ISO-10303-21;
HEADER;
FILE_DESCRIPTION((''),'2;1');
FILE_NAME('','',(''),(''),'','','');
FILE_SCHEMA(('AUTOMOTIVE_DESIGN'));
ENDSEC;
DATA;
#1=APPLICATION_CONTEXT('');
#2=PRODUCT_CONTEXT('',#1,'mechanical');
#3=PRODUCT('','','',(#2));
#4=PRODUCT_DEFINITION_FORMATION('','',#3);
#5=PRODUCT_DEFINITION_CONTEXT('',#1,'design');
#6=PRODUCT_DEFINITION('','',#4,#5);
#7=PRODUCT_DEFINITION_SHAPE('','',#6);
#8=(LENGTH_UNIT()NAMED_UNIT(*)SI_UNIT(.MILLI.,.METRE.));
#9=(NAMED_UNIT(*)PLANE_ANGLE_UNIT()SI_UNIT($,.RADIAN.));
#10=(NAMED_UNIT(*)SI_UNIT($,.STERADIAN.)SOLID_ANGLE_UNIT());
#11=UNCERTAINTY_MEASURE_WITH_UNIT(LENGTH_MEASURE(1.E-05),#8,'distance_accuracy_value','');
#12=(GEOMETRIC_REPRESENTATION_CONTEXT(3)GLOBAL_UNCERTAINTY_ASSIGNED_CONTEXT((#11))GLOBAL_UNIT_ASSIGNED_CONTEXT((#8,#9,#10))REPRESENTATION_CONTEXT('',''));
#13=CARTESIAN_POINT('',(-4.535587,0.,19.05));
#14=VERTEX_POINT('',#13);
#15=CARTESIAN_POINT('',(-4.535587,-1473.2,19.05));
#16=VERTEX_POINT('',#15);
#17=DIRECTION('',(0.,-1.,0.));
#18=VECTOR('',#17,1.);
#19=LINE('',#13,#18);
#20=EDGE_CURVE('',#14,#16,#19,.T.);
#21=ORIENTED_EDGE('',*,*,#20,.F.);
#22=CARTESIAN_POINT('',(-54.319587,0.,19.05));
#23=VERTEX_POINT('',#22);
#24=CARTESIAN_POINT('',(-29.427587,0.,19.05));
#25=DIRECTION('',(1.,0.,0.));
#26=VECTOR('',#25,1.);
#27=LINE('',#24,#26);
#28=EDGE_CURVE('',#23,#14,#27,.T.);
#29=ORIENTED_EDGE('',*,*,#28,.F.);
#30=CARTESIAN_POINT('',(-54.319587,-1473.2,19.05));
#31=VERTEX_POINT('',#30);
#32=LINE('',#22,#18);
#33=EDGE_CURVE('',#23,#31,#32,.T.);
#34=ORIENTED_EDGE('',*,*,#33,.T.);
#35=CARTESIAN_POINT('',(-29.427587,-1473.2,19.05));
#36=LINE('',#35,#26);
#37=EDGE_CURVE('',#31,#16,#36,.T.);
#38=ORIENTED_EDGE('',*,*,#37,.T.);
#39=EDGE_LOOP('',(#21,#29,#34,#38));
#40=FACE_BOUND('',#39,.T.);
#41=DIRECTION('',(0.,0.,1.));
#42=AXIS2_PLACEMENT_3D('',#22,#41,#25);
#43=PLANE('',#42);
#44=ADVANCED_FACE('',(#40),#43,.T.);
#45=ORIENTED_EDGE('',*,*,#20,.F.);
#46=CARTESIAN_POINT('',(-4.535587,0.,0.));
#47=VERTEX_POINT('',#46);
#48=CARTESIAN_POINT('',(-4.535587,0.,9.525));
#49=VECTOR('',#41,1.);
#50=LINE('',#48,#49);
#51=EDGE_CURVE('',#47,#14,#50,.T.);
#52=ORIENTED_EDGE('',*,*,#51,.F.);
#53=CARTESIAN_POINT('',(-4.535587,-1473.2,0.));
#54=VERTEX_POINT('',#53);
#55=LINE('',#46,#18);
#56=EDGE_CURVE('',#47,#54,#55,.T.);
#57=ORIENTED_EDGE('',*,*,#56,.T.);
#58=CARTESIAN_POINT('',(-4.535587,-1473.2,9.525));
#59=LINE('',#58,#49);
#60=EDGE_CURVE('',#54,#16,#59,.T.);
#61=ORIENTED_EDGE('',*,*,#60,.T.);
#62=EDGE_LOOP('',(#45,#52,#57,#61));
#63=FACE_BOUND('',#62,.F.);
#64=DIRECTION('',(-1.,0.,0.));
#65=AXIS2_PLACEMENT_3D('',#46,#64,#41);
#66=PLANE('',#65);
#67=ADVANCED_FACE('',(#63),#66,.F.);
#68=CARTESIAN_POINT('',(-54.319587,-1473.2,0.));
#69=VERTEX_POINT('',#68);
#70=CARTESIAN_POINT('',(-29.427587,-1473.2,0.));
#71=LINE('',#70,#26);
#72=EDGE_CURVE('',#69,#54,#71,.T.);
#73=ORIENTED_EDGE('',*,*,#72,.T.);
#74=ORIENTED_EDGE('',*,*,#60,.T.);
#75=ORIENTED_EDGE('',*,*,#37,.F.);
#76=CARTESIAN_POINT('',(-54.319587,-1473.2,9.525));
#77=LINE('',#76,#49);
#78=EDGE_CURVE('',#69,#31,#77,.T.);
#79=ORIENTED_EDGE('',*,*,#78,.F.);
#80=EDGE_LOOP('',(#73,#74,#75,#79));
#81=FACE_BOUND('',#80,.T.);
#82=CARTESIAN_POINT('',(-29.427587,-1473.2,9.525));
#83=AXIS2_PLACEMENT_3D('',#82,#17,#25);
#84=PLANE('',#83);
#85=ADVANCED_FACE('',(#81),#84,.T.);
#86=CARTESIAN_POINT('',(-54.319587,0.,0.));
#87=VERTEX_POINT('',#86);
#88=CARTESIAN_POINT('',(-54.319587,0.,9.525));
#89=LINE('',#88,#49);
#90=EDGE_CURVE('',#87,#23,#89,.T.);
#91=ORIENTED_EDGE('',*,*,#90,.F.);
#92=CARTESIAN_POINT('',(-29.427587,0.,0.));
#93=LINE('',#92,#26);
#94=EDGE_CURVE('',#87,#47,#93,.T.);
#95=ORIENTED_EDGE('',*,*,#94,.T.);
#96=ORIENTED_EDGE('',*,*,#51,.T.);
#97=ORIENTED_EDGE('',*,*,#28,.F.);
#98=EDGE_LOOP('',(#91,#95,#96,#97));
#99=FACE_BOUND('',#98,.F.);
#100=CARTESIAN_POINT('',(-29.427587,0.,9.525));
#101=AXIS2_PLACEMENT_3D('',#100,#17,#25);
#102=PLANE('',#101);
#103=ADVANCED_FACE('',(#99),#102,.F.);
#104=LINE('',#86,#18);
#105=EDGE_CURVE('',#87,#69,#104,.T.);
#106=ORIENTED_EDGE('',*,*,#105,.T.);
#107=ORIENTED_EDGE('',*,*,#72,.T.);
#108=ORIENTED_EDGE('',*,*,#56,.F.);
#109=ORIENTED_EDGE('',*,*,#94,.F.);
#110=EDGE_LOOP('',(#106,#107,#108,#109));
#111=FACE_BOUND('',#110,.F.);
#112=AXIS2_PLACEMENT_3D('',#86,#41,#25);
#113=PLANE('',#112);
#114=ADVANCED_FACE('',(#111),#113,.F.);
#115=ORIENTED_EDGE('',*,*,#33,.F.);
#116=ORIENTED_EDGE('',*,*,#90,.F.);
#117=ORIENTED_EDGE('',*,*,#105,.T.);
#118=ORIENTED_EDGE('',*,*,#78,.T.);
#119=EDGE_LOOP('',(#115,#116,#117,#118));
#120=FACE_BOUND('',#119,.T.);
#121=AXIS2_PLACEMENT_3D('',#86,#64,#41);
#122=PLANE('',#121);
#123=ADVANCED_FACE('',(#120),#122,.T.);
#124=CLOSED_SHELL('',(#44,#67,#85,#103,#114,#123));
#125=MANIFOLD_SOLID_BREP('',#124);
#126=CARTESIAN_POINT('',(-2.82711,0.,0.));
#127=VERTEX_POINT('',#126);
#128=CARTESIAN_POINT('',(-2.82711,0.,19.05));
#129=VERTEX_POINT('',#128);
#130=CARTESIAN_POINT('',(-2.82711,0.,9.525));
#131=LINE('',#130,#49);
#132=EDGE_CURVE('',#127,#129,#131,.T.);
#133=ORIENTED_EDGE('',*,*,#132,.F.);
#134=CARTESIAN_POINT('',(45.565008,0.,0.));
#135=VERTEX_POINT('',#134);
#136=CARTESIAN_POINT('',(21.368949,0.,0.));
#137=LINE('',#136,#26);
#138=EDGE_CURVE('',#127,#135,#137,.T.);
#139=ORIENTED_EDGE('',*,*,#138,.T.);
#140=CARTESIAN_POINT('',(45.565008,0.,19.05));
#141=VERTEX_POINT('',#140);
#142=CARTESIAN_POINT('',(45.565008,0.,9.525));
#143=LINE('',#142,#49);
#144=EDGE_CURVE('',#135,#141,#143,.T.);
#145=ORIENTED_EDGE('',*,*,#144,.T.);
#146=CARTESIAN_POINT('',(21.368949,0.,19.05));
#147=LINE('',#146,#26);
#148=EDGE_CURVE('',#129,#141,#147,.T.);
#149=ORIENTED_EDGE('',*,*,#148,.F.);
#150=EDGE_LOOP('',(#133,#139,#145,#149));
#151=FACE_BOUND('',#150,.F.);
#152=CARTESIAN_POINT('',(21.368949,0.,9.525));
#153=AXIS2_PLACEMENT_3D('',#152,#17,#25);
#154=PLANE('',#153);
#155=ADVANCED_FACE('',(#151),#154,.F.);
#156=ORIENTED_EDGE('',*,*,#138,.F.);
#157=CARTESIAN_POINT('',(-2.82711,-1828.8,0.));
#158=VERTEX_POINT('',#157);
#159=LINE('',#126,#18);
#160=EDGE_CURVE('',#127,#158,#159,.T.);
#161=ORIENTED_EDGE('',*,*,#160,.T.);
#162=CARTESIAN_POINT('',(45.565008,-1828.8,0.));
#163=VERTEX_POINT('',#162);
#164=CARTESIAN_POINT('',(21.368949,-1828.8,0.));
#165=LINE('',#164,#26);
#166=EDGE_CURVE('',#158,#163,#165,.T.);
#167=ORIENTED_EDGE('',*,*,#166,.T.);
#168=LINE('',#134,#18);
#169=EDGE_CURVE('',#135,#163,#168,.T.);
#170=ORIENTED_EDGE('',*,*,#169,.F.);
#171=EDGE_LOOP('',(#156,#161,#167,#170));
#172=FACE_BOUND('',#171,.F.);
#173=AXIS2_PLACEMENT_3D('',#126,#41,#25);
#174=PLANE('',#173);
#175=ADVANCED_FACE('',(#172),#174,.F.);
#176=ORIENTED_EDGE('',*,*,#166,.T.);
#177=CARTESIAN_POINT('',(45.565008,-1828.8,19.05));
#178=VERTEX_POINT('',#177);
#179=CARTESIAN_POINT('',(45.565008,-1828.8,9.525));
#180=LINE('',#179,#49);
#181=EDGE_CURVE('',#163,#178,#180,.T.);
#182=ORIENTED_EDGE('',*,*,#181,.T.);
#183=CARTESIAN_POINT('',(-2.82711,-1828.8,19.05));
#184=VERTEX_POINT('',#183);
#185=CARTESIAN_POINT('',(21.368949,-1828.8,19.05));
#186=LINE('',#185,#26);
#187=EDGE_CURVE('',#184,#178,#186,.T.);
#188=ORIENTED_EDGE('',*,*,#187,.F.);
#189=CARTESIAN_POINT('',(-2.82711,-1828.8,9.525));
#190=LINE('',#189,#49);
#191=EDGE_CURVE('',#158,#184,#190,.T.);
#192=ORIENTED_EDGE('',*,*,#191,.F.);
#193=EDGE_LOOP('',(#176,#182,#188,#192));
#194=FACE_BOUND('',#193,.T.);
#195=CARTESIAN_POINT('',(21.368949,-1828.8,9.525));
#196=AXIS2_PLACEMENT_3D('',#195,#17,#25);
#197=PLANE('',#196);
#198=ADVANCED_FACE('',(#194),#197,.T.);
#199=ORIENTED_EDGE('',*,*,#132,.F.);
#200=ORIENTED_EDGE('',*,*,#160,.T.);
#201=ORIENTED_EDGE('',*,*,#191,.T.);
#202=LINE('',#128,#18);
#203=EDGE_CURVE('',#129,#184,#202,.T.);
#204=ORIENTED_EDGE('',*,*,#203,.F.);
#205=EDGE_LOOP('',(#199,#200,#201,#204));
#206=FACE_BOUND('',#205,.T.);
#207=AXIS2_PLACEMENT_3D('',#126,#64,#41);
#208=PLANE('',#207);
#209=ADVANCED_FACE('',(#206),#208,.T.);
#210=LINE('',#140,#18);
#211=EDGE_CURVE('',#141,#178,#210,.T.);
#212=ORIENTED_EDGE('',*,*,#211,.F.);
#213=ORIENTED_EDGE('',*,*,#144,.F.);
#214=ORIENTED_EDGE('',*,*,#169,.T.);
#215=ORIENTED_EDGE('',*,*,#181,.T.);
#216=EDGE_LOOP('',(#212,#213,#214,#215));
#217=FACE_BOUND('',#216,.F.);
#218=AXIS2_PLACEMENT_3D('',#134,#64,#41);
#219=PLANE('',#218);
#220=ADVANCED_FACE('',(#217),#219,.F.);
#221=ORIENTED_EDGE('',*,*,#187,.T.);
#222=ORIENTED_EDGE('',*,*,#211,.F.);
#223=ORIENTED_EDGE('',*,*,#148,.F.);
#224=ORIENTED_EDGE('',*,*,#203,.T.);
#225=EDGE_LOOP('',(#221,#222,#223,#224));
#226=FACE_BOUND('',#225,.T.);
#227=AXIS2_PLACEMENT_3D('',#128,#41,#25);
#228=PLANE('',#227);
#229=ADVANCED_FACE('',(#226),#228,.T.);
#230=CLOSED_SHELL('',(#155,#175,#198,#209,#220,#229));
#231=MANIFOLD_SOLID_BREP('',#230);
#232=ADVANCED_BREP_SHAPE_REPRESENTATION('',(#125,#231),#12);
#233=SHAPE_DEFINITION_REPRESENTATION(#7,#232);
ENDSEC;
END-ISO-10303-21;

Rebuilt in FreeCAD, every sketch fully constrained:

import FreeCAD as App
import Part
import Sketcher
Q = App.Units.Quantity

doc = App.newDocument("Part")
params = doc.addObject("Spreadsheet::Sheet", "Params")
for row, (alias, value) in enumerate([
    ("sketch1_height", "0.75 in"),
    ("pad1_length", "72 in"),
    ("sketch2_width", "1.96 in"),
    ("sketch2_height", "0.75 in"),
    ("pad2_length", "58 in"),
], start=1):
    params.set(f"A{row}", alias)
    params.set(f"B{row}", "=" + value)
    params.setAlias(f"B{row}", alias)

body = doc.addObject("PartDesign::Body", "Body")

# Sketch on XZ plane
sketch1 = doc.addObject("Sketcher::SketchObject", "Sketch")
body.addObject(sketch1)
sketch1.AttachmentSupport = (doc.XZ_Plane, [""])
sketch1.MapMode = "FlatFace"
sketch1.addGeometry(Part.LineSegment(App.Vector(-3, 19, 0), App.Vector(-3, 0, 0)), False)
sketch1.addGeometry(Part.LineSegment(App.Vector(-3, 0, 0), App.Vector(46, 0, 0)), False)
sketch1.addGeometry(Part.LineSegment(App.Vector(46, 0, 0), App.Vector(46, 19, 0)), False)
sketch1.addGeometry(Part.LineSegment(App.Vector(46, 19, 0), App.Vector(-3, 19, 0)), False)
sketch1.addConstraint(Sketcher.Constraint("Coincident", 0, 2, 1, 1))
sketch1.addConstraint(Sketcher.Constraint("Coincident", 1, 2, 2, 1))
sketch1.addConstraint(Sketcher.Constraint("Coincident", 2, 2, 3, 1))
sketch1.addConstraint(Sketcher.Constraint("Coincident", 3, 2, 0, 1))
sketch1.addConstraint(Sketcher.Constraint("Vertical", 0))
sketch1.addConstraint(Sketcher.Constraint("Horizontal", 1))
sketch1.addConstraint(Sketcher.Constraint("Vertical", 2))
sketch1.addConstraint(Sketcher.Constraint("Horizontal", 3))
sketch1.addConstraint(Sketcher.Constraint("PointOnObject", 0, 2, -1))
sketch1.addConstraint(Sketcher.Constraint("DistanceY", 0, 2, 0, 1, Q("0.75 in")))
sketch1.addConstraint(Sketcher.Constraint("DistanceX", 1, 1, 1, 2, 48.392119))
sketch1.addConstraint(Sketcher.Constraint("DistanceX", 0, 2, -1, 1, 2.82711))
sketch1.setExpression("Constraints[9]", "Params.sketch1_height")
pad1 = doc.addObject("PartDesign::Pad", "Pad")
body.addObject(pad1)
pad1.Profile = sketch1
pad1.setExpression("Length", "Params.pad1_length")
body2 = doc.addObject("PartDesign::Body", "Body001")

# Sketch on XZ plane
sketch2 = doc.addObject("Sketcher::SketchObject", "Sketch001")
body2.addObject(sketch2)
sketch2.AttachmentSupport = (doc.getObject("XZ_Plane001"), [""])
sketch2.MapMode = "FlatFace"
sketch2.addGeometry(Part.LineSegment(App.Vector(-54, 19, 0), App.Vector(-54, 0, 0)), False)
sketch2.addGeometry(Part.LineSegment(App.Vector(-54, 0, 0), App.Vector(-5, 0, 0)), False)
sketch2.addGeometry(Part.LineSegment(App.Vector(-5, 0, 0), App.Vector(-5, 19, 0)), False)
sketch2.addGeometry(Part.LineSegment(App.Vector(-5, 19, 0), App.Vector(-54, 19, 0)), False)
sketch2.addConstraint(Sketcher.Constraint("Coincident", 0, 2, 1, 1))
sketch2.addConstraint(Sketcher.Constraint("Coincident", 1, 2, 2, 1))
sketch2.addConstraint(Sketcher.Constraint("Coincident", 2, 2, 3, 1))
sketch2.addConstraint(Sketcher.Constraint("Coincident", 3, 2, 0, 1))
sketch2.addConstraint(Sketcher.Constraint("Vertical", 0))
sketch2.addConstraint(Sketcher.Constraint("Horizontal", 1))
sketch2.addConstraint(Sketcher.Constraint("Vertical", 2))
sketch2.addConstraint(Sketcher.Constraint("Horizontal", 3))
sketch2.addConstraint(Sketcher.Constraint("PointOnObject", 0, 2, -1))
sketch2.addConstraint(Sketcher.Constraint("DistanceX", 1, 1, 1, 2, Q("1.96 in")))
sketch2.addConstraint(Sketcher.Constraint("DistanceY", 0, 2, 0, 1, Q("0.75 in")))
sketch2.addConstraint(Sketcher.Constraint("DistanceX", 0, 2, -1, 1, 54.319587))
sketch2.setExpression("Constraints[9]", "Params.sketch2_width")
sketch2.setExpression("Constraints[10]", "Params.sketch2_height")
pad2 = doc.addObject("PartDesign::Pad", "Pad001")
body2.addObject(pad2)
pad2.Profile = sketch2
pad2.setExpression("Length", "Params.pad2_length")

doc.recompute()
